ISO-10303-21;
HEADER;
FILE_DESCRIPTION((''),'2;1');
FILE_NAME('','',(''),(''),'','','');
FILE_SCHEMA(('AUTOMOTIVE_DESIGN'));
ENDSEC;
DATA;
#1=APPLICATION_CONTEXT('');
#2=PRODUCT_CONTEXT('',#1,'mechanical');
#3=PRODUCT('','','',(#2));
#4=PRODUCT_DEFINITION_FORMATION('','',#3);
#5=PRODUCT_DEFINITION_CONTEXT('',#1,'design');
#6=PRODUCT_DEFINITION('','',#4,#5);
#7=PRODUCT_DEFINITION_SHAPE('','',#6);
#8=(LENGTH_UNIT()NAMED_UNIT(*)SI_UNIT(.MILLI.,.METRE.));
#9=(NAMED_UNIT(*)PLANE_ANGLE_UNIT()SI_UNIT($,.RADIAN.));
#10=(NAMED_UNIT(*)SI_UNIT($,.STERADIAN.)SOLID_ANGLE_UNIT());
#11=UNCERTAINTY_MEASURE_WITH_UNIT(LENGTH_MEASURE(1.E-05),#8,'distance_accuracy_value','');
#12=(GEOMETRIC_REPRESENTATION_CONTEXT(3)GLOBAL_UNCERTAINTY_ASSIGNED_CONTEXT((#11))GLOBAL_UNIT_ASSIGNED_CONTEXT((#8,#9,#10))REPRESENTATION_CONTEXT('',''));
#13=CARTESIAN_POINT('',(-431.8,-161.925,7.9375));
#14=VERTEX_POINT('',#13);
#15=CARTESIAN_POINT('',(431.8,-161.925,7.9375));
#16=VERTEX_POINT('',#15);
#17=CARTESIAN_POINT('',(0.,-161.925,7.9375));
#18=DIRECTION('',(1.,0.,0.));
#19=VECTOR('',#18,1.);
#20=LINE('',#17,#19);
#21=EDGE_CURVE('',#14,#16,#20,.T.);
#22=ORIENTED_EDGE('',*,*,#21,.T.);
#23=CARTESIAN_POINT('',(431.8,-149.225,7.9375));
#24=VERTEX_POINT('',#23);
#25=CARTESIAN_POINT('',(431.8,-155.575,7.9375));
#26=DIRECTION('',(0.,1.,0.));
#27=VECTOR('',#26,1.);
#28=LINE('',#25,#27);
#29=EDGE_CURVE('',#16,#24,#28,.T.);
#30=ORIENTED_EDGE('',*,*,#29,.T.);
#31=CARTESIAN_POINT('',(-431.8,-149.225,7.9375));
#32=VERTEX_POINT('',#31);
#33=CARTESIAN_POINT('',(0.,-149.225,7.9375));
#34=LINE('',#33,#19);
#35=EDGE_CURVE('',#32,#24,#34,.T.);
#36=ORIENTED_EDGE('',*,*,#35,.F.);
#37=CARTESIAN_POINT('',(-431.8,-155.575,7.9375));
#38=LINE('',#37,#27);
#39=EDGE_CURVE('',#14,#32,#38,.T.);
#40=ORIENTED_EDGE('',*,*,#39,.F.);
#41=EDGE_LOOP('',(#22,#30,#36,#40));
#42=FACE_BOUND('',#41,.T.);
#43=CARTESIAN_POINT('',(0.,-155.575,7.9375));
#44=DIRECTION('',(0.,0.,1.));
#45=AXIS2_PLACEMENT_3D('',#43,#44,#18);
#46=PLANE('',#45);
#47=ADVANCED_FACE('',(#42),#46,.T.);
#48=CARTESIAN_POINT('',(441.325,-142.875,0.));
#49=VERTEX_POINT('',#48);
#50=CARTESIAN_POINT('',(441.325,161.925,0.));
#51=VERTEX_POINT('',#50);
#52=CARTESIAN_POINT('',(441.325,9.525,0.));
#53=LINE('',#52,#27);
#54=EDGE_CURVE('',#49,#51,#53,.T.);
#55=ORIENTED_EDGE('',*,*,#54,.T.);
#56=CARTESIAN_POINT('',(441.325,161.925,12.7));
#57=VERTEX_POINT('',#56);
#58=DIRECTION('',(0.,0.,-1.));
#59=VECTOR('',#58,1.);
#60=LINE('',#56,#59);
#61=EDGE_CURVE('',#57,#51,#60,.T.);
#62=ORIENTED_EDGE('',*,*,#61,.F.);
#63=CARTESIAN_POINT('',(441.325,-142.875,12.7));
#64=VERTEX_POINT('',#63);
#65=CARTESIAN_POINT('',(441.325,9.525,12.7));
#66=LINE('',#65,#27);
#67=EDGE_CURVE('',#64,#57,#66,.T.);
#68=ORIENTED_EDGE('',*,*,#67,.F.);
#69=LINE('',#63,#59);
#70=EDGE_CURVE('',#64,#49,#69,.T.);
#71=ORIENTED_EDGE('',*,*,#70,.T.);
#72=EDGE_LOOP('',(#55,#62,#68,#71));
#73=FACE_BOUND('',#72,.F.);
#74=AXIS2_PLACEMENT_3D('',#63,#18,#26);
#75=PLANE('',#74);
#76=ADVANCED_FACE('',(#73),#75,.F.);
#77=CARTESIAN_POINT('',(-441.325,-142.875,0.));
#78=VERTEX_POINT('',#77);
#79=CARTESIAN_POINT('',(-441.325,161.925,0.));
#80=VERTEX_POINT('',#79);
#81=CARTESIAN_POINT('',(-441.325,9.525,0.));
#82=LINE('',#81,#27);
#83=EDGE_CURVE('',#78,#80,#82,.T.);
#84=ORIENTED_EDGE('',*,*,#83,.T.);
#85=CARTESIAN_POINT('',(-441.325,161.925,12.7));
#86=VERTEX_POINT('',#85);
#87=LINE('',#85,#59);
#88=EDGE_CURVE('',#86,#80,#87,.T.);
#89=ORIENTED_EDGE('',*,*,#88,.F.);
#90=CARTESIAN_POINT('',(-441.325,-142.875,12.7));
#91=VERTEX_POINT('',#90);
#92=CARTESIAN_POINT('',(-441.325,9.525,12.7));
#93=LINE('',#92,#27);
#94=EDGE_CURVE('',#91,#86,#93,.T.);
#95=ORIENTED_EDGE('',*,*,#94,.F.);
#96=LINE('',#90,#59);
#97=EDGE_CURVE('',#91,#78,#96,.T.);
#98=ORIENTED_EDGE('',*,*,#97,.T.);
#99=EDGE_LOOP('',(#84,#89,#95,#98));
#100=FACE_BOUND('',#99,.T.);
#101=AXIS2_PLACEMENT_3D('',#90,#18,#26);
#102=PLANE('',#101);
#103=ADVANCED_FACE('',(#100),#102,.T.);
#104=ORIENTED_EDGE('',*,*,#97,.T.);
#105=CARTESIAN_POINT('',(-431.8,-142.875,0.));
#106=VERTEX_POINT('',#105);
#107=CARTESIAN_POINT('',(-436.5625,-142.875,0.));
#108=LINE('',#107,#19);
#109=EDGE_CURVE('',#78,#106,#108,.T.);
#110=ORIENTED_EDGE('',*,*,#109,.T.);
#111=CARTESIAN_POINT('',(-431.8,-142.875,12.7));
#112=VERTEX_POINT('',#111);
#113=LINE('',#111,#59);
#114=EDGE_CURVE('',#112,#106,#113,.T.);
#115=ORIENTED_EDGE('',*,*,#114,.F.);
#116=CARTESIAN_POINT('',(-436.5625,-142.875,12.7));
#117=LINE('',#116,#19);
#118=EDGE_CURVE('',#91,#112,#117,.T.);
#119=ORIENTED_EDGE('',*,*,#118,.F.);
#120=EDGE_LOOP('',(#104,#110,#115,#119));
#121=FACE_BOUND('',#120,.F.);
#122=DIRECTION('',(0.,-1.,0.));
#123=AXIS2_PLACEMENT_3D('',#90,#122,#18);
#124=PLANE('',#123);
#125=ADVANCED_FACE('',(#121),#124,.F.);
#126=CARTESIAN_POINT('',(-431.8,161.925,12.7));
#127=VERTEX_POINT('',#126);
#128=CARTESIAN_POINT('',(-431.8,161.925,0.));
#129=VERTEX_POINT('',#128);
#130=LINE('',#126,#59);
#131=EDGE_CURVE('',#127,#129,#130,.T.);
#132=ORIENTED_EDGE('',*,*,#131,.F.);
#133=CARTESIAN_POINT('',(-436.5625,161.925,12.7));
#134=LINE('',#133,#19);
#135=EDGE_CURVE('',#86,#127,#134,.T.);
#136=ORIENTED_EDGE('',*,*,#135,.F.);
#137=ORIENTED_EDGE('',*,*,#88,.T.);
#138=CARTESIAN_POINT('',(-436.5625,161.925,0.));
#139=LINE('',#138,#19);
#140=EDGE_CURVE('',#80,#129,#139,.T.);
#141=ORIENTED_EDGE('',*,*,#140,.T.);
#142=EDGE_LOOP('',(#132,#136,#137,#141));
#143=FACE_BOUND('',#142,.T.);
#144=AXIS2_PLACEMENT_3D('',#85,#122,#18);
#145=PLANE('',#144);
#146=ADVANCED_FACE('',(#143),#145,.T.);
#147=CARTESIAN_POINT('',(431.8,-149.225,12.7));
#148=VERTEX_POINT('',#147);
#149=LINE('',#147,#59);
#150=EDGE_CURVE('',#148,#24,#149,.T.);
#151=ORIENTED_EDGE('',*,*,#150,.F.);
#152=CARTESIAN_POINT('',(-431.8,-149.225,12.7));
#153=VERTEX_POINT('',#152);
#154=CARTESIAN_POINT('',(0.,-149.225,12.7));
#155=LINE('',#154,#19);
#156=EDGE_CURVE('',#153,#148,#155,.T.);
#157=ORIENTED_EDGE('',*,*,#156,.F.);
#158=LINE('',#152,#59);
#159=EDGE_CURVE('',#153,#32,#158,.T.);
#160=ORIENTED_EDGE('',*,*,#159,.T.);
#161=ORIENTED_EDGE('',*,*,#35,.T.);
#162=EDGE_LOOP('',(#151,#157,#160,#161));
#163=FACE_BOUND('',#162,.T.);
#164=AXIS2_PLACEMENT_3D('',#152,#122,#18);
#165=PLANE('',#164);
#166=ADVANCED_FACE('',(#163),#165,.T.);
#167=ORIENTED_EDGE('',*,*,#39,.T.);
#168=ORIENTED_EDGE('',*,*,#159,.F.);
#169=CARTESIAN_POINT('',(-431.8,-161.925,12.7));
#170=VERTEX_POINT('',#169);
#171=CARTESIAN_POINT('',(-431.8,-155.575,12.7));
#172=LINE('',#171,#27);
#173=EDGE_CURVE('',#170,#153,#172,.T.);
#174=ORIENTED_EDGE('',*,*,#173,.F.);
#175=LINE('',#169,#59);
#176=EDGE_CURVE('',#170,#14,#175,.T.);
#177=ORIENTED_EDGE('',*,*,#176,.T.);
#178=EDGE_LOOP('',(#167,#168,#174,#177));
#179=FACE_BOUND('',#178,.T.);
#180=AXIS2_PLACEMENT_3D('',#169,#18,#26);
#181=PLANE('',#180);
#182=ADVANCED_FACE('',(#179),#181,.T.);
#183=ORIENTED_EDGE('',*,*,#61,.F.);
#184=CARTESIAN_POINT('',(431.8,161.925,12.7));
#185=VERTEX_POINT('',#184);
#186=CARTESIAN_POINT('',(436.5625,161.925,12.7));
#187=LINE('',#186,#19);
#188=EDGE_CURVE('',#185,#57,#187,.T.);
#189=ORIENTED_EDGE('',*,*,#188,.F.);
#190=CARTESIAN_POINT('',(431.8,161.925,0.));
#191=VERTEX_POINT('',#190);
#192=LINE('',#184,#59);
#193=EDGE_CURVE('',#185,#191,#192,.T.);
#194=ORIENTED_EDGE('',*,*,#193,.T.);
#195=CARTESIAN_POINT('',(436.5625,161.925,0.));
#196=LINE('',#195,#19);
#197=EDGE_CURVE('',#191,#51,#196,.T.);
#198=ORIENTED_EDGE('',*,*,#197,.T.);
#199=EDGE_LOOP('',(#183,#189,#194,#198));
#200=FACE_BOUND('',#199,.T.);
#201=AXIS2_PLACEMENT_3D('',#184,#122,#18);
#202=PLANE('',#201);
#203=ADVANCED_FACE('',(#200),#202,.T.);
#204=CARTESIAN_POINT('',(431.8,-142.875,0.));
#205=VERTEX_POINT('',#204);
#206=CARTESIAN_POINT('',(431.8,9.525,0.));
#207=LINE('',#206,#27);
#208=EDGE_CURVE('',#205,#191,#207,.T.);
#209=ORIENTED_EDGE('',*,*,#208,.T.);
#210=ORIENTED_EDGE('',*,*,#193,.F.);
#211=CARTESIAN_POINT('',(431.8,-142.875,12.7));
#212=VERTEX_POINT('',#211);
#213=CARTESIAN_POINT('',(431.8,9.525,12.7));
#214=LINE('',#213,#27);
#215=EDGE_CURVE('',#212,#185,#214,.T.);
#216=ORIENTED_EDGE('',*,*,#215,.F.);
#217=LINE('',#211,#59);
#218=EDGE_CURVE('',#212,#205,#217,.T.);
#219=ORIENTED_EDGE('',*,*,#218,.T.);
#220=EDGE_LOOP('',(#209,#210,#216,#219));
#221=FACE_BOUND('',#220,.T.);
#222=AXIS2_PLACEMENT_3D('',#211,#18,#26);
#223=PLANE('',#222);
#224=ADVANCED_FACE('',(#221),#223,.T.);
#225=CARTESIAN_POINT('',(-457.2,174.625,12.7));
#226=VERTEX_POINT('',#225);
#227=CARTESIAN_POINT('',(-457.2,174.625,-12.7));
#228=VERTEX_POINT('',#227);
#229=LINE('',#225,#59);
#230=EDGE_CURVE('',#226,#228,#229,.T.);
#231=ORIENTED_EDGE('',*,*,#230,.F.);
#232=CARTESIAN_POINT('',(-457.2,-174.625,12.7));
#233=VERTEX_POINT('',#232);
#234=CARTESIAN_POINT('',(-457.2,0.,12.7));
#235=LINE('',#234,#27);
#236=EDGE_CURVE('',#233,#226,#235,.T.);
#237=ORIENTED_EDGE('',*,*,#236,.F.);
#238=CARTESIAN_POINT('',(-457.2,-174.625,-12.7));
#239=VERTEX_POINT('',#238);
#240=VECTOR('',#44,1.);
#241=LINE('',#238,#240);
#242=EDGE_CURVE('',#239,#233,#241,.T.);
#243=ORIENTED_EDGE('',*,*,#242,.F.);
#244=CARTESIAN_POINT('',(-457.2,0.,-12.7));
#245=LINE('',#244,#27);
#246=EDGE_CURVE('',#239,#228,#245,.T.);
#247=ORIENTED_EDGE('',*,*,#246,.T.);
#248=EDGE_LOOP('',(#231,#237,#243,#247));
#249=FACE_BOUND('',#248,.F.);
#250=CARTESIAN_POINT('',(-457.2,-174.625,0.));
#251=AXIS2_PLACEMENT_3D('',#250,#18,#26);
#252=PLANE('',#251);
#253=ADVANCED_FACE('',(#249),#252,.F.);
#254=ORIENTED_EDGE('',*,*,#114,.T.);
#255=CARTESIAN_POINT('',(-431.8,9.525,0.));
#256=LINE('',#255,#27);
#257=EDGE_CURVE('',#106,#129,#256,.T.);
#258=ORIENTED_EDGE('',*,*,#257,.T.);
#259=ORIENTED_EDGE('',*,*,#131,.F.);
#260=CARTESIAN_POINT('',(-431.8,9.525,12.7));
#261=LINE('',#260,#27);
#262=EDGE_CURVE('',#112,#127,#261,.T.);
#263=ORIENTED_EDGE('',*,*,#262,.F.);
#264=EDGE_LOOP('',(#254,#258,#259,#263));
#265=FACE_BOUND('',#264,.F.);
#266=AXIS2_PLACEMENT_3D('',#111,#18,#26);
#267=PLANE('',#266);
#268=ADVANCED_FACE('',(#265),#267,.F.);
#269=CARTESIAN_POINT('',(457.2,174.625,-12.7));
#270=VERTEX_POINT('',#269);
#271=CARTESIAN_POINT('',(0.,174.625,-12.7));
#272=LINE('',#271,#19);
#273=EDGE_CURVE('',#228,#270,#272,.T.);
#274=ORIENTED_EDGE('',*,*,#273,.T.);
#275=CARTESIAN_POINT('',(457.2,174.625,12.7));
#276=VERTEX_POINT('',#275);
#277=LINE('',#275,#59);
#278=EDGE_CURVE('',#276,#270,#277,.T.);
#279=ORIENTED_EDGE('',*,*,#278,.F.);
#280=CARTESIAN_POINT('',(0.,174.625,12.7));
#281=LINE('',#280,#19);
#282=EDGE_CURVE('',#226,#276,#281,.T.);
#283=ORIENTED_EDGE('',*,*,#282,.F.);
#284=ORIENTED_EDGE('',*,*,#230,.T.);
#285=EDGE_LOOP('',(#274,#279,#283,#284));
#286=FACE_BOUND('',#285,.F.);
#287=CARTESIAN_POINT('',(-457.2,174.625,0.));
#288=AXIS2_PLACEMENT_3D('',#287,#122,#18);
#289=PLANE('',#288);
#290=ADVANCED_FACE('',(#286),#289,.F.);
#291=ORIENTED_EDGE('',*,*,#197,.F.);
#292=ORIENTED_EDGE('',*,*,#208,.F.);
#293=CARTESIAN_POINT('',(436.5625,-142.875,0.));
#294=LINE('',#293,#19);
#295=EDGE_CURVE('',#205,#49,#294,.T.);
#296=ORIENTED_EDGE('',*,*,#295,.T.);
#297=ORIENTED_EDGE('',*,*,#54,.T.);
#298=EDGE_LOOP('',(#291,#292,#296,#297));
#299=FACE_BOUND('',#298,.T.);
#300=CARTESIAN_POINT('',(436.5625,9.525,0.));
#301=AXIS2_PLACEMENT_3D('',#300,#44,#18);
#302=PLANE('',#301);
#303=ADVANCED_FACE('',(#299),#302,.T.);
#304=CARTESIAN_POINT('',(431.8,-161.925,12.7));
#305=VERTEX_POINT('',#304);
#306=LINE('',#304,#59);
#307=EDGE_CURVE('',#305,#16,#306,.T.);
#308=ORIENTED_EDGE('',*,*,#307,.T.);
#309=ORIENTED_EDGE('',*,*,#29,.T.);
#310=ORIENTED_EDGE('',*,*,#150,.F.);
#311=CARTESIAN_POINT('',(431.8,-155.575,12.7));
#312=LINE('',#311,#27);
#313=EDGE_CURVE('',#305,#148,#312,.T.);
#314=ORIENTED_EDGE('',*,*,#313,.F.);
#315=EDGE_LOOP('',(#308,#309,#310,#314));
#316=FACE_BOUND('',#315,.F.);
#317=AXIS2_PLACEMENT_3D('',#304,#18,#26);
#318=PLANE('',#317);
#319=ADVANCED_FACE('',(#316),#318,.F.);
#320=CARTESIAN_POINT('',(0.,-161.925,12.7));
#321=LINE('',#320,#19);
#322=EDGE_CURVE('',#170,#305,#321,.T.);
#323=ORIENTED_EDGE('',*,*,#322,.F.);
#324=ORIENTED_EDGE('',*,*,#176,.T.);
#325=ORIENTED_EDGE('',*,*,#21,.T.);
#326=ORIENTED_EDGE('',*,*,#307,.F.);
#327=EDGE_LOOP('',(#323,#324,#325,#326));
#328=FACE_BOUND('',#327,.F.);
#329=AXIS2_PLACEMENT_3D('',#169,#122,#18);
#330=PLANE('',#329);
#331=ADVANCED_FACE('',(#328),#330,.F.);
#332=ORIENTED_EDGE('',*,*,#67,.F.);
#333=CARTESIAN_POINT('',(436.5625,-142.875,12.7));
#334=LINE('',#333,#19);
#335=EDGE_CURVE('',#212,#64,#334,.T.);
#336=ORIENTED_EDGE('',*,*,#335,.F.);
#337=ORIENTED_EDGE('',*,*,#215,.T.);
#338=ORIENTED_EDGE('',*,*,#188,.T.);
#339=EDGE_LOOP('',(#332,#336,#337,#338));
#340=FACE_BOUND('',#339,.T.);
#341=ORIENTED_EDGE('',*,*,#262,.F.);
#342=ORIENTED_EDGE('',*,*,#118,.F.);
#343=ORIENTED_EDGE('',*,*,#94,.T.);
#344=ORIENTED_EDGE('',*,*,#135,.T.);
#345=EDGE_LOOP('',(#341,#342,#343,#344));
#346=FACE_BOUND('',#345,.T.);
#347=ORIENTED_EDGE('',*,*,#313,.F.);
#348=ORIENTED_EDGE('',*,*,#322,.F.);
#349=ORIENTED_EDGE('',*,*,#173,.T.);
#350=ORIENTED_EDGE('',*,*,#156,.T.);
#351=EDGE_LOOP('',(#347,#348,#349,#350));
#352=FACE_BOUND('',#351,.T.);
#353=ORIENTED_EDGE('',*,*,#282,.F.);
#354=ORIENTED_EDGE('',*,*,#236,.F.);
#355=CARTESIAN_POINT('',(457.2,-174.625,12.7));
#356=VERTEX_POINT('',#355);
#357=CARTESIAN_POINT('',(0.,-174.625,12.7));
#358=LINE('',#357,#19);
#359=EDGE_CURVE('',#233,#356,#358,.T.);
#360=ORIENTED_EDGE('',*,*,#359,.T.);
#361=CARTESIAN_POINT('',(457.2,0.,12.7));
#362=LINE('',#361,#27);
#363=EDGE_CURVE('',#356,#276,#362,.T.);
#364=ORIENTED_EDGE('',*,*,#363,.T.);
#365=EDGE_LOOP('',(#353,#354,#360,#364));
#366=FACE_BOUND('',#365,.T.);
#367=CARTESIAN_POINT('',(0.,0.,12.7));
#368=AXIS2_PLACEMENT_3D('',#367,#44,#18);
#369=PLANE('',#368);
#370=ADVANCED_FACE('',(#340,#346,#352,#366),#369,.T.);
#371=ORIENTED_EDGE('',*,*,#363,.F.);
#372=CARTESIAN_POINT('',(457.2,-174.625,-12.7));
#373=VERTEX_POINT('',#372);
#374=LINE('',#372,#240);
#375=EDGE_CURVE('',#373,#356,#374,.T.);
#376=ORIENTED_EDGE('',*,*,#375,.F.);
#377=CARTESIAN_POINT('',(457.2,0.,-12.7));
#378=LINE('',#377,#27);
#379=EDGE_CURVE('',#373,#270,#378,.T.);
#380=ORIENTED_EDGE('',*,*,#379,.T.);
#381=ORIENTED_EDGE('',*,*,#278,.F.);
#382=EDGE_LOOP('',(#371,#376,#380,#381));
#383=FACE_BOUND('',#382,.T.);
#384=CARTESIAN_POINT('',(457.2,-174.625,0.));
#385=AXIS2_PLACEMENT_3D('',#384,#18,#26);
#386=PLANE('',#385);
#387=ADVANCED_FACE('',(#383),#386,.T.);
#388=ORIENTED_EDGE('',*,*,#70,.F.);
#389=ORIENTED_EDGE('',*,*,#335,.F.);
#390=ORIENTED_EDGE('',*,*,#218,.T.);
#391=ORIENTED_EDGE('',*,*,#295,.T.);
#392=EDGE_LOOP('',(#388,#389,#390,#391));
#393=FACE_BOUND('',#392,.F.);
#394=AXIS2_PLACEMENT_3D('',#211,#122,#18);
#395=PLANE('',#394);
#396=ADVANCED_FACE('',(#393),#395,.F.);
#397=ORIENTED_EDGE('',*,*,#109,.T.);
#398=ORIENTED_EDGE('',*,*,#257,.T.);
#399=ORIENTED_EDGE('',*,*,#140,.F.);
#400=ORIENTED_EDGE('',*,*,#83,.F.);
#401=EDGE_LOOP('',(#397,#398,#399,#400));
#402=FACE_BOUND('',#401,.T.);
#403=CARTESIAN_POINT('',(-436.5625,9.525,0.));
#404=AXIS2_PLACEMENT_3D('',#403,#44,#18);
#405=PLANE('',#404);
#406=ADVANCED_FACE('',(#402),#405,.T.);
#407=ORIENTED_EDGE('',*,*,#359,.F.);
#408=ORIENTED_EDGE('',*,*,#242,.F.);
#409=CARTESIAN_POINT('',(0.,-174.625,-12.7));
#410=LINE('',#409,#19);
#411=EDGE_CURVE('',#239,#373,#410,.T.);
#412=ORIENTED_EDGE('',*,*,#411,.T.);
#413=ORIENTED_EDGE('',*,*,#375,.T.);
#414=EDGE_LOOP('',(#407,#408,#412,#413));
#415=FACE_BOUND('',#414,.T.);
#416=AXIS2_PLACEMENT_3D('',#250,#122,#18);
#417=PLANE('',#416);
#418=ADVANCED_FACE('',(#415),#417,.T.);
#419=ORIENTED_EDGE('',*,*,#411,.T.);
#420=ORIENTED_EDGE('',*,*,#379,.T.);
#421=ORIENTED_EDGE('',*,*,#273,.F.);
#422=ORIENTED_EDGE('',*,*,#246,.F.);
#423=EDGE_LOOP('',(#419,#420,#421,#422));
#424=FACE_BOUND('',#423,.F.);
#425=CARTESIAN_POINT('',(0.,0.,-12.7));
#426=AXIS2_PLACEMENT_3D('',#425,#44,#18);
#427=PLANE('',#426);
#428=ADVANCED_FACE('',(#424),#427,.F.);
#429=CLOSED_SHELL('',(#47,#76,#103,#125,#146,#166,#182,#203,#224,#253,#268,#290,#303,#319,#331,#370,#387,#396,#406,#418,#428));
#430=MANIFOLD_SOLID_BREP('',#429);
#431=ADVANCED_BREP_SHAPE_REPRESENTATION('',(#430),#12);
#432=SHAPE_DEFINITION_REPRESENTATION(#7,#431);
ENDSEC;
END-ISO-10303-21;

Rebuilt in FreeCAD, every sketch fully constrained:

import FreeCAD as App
import Part
import Sketcher

V = App.Vector
Q = App.Units.Quantity


def add_polygon(sketch, points):
    """Adds a closed chain of lines whose ends are joined by coincident constraints."""
    first, n = sketch.GeometryCount, len(points)
    for a, b in zip(points, points[1:] + points[:1]):
        sketch.addGeometry(Part.LineSegment(App.Vector(*a, 0), App.Vector(*b, 0)), False)
    for i in range(n):
        sketch.addConstraint(Sketcher.Constraint("Coincident", first + i, 2, first + (i + 1) % n, 1))

doc = App.newDocument("Part")
body = doc.addObject("PartDesign::Body", "Body")

# Sketch on XY plane
sketch1 = body.newObject("Sketcher::SketchObject", "Sketch")
sketch1.AttachmentSupport = (doc.getObject("XY_Plane"), [""])
sketch1.MapMode = "FlatFace"
add_polygon(sketch1, [(-457, 175), (-457, -175), (457, -175), (457, 175)])  # lines 0-3
sketch1.addConstraint([
    Sketcher.Constraint("Vertical", 0),
    Sketcher.Constraint("Horizontal", 1),
    Sketcher.Constraint("Vertical", 2),
    Sketcher.Constraint("Horizontal", 3),
    Sketcher.Constraint("Symmetric", 0, 2, 2, 2, -1, 1),
    Sketcher.Constraint("DistanceX", 1, 1, 1, 2, Q("36 in")),
    Sketcher.Constraint("DistanceY", 0, 2, 0, 1, Q("13.75 in")),
])
pad1 = body.newObject("PartDesign::Pad", "Pad")
pad1.Profile = sketch1
pad1.Length = Q("1 in")
pad1.Midplane = True

# Sketch on XY plane
sketch2 = body.newObject("Sketcher::SketchObject", "Sketch001")
sketch2.AttachmentSupport = (doc.getObject("XY_Plane"), [""])
sketch2.MapMode = "FlatFace"
sketch2.AttachmentOffset = App.Placement(V(0, 0, 0.5 * 25.4), App.Rotation())
add_polygon(sketch2, [(-432, -149), (-432, -162), (432, -162), (432, -149)])  # lines 0-3
sketch2.addConstraint([
    Sketcher.Constraint("Vertical", 0),
    Sketcher.Constraint("Horizontal", 1),
    Sketcher.Constraint("Vertical", 2),
    Sketcher.Constraint("Horizontal", 3),
    Sketcher.Constraint("DistanceX", 1, 1, 1, 2, Q("34 in")),
    Sketcher.Constraint("DistanceY", 0, 2, 0, 1, Q("0.5 in")),
    Sketcher.Constraint("DistanceX", 0, 2, -1, 1, Q("17 in")),
    Sketcher.Constraint("DistanceY", 0, 2, -1, 1, Q("6.375 in")),
])
pocket1 = body.newObject("PartDesign::Pocket", "Pocket")
pocket1.Profile = sketch2
pocket1.Length = Q("0.1875 in")

# Sketch on XY plane
sketch3 = body.newObject("Sketcher::SketchObject", "Sketch002")
sketch3.AttachmentSupport = (doc.getObject("XY_Plane"), [""])
sketch3.MapMode = "FlatFace"
sketch3.AttachmentOffset = App.Placement(V(0, 0, 0.5 * 25.4), App.Rotation())
add_polygon(sketch3, [(-441, 162), (-441, -143), (-432, -143), (-432, 162)])  # lines 0-3
add_polygon(sketch3, [(432, 162), (432, -143), (441, -143), (441, 162)])  # lines 4-7
sketch3.addConstraint([
    Sketcher.Constraint("Vertical", 0),
    Sketcher.Constraint("Horizontal", 1),
    Sketcher.Constraint("Vertical", 2),
    Sketcher.Constraint("Horizontal", 3),
    Sketcher.Constraint("Vertical", 4),
    Sketcher.Constraint("Horizontal", 5),
    Sketcher.Constraint("Vertical", 6),
    Sketcher.Constraint("Horizontal", 7),
    Sketcher.Constraint("Symmetric", 1, 2, 4, 2, -2),
    Sketcher.Constraint("Symmetric", 3, 2, 6, 2, -2),
    Sketcher.Constraint("DistanceY", 0, 2, 0, 1, Q("12 in")),
    Sketcher.Constraint("DistanceX", 1, 2, -1, 1, Q("17 in")),
    Sketcher.Constraint("DistanceX", 1, 1, 1, 2, Q("0.375 in")),
    Sketcher.Constraint("DistanceY", 0, 2, -1, 1, Q("5.625 in")),
])
pocket2 = body.newObject("PartDesign::Pocket", "Pocket001")
pocket2.Profile = sketch3
pocket2.Length = Q("0.5 in")

doc.recompute()
